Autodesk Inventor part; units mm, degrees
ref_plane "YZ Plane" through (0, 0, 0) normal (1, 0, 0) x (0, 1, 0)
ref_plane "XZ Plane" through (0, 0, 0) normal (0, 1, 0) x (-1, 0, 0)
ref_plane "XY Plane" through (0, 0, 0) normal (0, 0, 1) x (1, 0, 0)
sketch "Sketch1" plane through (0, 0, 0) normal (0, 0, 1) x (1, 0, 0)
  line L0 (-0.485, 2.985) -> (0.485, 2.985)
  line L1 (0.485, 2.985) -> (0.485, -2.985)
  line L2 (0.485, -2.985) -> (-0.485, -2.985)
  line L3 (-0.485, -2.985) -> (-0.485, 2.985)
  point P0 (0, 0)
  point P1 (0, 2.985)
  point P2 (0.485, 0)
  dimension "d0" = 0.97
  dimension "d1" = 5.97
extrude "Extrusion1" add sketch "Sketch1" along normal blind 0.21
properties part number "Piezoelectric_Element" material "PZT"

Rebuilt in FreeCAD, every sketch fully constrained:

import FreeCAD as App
import Part
import Sketcher

V = App.Vector
Q = App.Units.Quantity


def add_polygon(sketch, points):
    """Adds a closed chain of lines whose ends are joined by coincident constraints."""
    first, n = sketch.GeometryCount, len(points)
    for a, b in zip(points, points[1:] + points[:1]):
        sketch.addGeometry(Part.LineSegment(App.Vector(*a, 0), App.Vector(*b, 0)), False)
    for i in range(n):
        sketch.addConstraint(Sketcher.Constraint("Coincident", first + i, 2, first + (i + 1) % n, 1))

doc = App.newDocument("Part")
body = doc.addObject("PartDesign::Body", "Body")

sketch1 = body.newObject("Sketcher::SketchObject", "Sketch")
sketch1.AttachmentSupport = (doc.getObject("XY_Plane"), [""])
sketch1.MapMode = "FlatFace"
add_polygon(sketch1, [(0.5, 3), (-0.5, 3), (-0.5, -3), (0.5, -3)])
sketch1.addConstraint(Sketcher.Constraint("Horizontal", 0))
sketch1.addConstraint(Sketcher.Constraint("Vertical", 1))
sketch1.addConstraint(Sketcher.Constraint("Horizontal", 2))
sketch1.addConstraint(Sketcher.Constraint("Vertical", 3))
sketch1.addConstraint(Sketcher.Constraint("Symmetric", 0, 2, 2, 2, -1, 1))
sketch1.addConstraint(Sketcher.Constraint("DistanceX", 0, 2, 0, 1, Q("0.97 mm")))
sketch1.addConstraint(Sketcher.Constraint("DistanceY", 1, 2, 1, 1, Q("5.97 mm")))
pad1 = body.newObject("PartDesign::Pad", "Pad")
pad1.Profile = sketch1
pad1.Length = 0.21

doc.recompute()
